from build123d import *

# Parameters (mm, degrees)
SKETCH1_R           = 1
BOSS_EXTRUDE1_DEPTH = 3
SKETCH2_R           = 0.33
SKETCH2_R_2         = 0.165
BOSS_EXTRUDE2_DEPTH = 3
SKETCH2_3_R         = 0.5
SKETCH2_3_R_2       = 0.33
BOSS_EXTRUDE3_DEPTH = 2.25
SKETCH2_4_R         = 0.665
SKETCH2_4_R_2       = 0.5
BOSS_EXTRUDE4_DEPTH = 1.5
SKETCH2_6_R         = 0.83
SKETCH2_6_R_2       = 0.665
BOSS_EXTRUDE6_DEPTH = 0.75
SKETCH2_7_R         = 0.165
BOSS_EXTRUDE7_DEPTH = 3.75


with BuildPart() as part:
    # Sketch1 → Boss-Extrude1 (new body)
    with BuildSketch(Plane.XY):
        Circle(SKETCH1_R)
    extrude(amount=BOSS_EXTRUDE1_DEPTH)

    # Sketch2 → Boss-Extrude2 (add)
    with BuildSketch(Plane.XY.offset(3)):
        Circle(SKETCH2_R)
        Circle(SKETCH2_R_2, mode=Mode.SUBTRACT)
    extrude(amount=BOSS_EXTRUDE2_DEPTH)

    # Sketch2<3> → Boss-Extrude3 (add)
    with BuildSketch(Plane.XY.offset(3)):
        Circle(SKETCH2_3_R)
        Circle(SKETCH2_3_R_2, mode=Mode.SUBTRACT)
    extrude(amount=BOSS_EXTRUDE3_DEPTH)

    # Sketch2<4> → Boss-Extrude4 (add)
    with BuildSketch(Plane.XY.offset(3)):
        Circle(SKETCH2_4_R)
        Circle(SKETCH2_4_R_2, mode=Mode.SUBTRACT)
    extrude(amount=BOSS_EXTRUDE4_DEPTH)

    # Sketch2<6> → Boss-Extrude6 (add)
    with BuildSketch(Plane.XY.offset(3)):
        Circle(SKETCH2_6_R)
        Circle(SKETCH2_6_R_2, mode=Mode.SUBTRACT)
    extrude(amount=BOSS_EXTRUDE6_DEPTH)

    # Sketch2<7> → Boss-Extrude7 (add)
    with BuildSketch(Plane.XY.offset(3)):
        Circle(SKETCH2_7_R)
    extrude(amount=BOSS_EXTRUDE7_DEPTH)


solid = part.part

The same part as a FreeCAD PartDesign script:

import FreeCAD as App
import Part
import Sketcher

doc = App.newDocument("Part")
body = doc.addObject("PartDesign::Body", "Body")

sketch1 = body.newObject("Sketcher::SketchObject", "Sketch")
sketch1.AttachmentSupport = (doc.getObject("XY_Plane"), [""])
sketch1.MapMode = "FlatFace"
sketch1.addGeometry(Part.Circle(App.Vector(0, 0, 0), App.Vector(0, 0, 1), 1), False)
sketch1.addConstraint([
    Sketcher.Constraint("Coincident", 0, 3, -1, 1),
    Sketcher.Constraint("Diameter", 0, 2.0),
])
pad1 = body.newObject("PartDesign::Pad", "Pad")
pad1.Profile = sketch1
pad1.Length = 3

sketch2 = body.newObject("Sketcher::SketchObject", "Sketch001")
sketch2.AttachmentSupport = (doc.getObject("XY_Plane"), [""])
sketch2.MapMode = "FlatFace"
sketch2.AttachmentOffset = App.Placement(App.Vector(0, 0, 3), App.Rotation())
sketch2.addGeometry([
    Part.Circle(App.Vector(0, 0, 0), App.Vector(0, 0, 1), 0.33),
    Part.Circle(App.Vector(0, 0, 0), App.Vector(0, 0, 1), 0.165),
], False)
sketch2.addConstraint([
    Sketcher.Constraint("Coincident", 0, 3, -1, 1),
    Sketcher.Constraint("Coincident", 1, 3, -1, 1),
    Sketcher.Constraint("Diameter", 0, 0.66),
    Sketcher.Constraint("Diameter", 1, 0.33),
])
pad2 = body.newObject("PartDesign::Pad", "Pad001")
pad2.Profile = sketch2
pad2.Length = 3

sketch3 = body.newObject("Sketcher::SketchObject", "Sketch002")
sketch3.AttachmentSupport = (doc.getObject("XY_Plane"), [""])
sketch3.MapMode = "FlatFace"
sketch3.AttachmentOffset = App.Placement(App.Vector(0, 0, 3), App.Rotation())
sketch3.addGeometry([
    Part.Circle(App.Vector(0, 0, 0), App.Vector(0, 0, 1), 0.5),
    Part.Circle(App.Vector(0, 0, 0), App.Vector(0, 0, 1), 0.33),
], False)
sketch3.addConstraint([
    Sketcher.Constraint("Coincident", 0, 3, -1, 1),
    Sketcher.Constraint("Coincident", 1, 3, -1, 1),
    Sketcher.Constraint("Diameter", 0, 1.0),
    Sketcher.Constraint("Diameter", 1, 0.66),
])
pad3 = body.newObject("PartDesign::Pad", "Pad002")
pad3.Profile = sketch3
pad3.Length = 2.25

sketch4 = body.newObject("Sketcher::SketchObject", "Sketch003")
sketch4.AttachmentSupport = (doc.getObject("XY_Plane"), [""])
sketch4.MapMode = "FlatFace"
sketch4.AttachmentOffset = App.Placement(App.Vector(0, 0, 3), App.Rotation())
sketch4.addGeometry([
    Part.Circle(App.Vector(0, 0, 0), App.Vector(0, 0, 1), 0.665),
    Part.Circle(App.Vector(0, 0, 0), App.Vector(0, 0, 1), 0.5),
], False)
sketch4.addConstraint([
    Sketcher.Constraint("Coincident", 0, 3, -1, 1),
    Sketcher.Constraint("Coincident", 1, 3, -1, 1),
    Sketcher.Constraint("Diameter", 1, 1.0),
    Sketcher.Constraint("Diameter", 0, 1.33),
])
pad4 = body.newObject("PartDesign::Pad", "Pad003")
pad4.Profile = sketch4
pad4.Length = 1.5

sketch5 = body.newObject("Sketcher::SketchObject", "Sketch004")
sketch5.AttachmentSupport = (doc.getObject("XY_Plane"), [""])
sketch5.MapMode = "FlatFace"
sketch5.AttachmentOffset = App.Placement(App.Vector(0, 0, 3), App.Rotation())
sketch5.addGeometry([
    Part.Circle(App.Vector(0, 0, 0), App.Vector(0, 0, 1), 0.83),
    Part.Circle(App.Vector(0, 0, 0), App.Vector(0, 0, 1), 0.665),
], False)
sketch5.addConstraint([
    Sketcher.Constraint("Coincident", 0, 3, -1, 1),
    Sketcher.Constraint("Coincident", 1, 3, -1, 1),
    Sketcher.Constraint("Diameter", 0, 1.66),
    Sketcher.Constraint("Diameter", 1, 1.33),
])
pad5 = body.newObject("PartDesign::Pad", "Pad004")
pad5.Profile = sketch5
pad5.Length = 0.75

sketch6 = body.newObject("Sketcher::SketchObject", "Sketch005")
sketch6.AttachmentSupport = (doc.getObject("XY_Plane"), [""])
sketch6.MapMode = "FlatFace"
sketch6.AttachmentOffset = App.Placement(App.Vector(0, 0, 3), App.Rotation())
sketch6.addGeometry(Part.Circle(App.Vector(0, 0, 0), App.Vector(0, 0, 1), 0.165), False)
sketch6.addConstraint([
    Sketcher.Constraint("Coincident", 0, 3, -1, 1),
    Sketcher.Constraint("Diameter", 0, 0.33),
])
pad6 = body.newObject("PartDesign::Pad", "Pad005")
pad6.Profile = sketch6
pad6.Length = 3.75

doc.recompute()
